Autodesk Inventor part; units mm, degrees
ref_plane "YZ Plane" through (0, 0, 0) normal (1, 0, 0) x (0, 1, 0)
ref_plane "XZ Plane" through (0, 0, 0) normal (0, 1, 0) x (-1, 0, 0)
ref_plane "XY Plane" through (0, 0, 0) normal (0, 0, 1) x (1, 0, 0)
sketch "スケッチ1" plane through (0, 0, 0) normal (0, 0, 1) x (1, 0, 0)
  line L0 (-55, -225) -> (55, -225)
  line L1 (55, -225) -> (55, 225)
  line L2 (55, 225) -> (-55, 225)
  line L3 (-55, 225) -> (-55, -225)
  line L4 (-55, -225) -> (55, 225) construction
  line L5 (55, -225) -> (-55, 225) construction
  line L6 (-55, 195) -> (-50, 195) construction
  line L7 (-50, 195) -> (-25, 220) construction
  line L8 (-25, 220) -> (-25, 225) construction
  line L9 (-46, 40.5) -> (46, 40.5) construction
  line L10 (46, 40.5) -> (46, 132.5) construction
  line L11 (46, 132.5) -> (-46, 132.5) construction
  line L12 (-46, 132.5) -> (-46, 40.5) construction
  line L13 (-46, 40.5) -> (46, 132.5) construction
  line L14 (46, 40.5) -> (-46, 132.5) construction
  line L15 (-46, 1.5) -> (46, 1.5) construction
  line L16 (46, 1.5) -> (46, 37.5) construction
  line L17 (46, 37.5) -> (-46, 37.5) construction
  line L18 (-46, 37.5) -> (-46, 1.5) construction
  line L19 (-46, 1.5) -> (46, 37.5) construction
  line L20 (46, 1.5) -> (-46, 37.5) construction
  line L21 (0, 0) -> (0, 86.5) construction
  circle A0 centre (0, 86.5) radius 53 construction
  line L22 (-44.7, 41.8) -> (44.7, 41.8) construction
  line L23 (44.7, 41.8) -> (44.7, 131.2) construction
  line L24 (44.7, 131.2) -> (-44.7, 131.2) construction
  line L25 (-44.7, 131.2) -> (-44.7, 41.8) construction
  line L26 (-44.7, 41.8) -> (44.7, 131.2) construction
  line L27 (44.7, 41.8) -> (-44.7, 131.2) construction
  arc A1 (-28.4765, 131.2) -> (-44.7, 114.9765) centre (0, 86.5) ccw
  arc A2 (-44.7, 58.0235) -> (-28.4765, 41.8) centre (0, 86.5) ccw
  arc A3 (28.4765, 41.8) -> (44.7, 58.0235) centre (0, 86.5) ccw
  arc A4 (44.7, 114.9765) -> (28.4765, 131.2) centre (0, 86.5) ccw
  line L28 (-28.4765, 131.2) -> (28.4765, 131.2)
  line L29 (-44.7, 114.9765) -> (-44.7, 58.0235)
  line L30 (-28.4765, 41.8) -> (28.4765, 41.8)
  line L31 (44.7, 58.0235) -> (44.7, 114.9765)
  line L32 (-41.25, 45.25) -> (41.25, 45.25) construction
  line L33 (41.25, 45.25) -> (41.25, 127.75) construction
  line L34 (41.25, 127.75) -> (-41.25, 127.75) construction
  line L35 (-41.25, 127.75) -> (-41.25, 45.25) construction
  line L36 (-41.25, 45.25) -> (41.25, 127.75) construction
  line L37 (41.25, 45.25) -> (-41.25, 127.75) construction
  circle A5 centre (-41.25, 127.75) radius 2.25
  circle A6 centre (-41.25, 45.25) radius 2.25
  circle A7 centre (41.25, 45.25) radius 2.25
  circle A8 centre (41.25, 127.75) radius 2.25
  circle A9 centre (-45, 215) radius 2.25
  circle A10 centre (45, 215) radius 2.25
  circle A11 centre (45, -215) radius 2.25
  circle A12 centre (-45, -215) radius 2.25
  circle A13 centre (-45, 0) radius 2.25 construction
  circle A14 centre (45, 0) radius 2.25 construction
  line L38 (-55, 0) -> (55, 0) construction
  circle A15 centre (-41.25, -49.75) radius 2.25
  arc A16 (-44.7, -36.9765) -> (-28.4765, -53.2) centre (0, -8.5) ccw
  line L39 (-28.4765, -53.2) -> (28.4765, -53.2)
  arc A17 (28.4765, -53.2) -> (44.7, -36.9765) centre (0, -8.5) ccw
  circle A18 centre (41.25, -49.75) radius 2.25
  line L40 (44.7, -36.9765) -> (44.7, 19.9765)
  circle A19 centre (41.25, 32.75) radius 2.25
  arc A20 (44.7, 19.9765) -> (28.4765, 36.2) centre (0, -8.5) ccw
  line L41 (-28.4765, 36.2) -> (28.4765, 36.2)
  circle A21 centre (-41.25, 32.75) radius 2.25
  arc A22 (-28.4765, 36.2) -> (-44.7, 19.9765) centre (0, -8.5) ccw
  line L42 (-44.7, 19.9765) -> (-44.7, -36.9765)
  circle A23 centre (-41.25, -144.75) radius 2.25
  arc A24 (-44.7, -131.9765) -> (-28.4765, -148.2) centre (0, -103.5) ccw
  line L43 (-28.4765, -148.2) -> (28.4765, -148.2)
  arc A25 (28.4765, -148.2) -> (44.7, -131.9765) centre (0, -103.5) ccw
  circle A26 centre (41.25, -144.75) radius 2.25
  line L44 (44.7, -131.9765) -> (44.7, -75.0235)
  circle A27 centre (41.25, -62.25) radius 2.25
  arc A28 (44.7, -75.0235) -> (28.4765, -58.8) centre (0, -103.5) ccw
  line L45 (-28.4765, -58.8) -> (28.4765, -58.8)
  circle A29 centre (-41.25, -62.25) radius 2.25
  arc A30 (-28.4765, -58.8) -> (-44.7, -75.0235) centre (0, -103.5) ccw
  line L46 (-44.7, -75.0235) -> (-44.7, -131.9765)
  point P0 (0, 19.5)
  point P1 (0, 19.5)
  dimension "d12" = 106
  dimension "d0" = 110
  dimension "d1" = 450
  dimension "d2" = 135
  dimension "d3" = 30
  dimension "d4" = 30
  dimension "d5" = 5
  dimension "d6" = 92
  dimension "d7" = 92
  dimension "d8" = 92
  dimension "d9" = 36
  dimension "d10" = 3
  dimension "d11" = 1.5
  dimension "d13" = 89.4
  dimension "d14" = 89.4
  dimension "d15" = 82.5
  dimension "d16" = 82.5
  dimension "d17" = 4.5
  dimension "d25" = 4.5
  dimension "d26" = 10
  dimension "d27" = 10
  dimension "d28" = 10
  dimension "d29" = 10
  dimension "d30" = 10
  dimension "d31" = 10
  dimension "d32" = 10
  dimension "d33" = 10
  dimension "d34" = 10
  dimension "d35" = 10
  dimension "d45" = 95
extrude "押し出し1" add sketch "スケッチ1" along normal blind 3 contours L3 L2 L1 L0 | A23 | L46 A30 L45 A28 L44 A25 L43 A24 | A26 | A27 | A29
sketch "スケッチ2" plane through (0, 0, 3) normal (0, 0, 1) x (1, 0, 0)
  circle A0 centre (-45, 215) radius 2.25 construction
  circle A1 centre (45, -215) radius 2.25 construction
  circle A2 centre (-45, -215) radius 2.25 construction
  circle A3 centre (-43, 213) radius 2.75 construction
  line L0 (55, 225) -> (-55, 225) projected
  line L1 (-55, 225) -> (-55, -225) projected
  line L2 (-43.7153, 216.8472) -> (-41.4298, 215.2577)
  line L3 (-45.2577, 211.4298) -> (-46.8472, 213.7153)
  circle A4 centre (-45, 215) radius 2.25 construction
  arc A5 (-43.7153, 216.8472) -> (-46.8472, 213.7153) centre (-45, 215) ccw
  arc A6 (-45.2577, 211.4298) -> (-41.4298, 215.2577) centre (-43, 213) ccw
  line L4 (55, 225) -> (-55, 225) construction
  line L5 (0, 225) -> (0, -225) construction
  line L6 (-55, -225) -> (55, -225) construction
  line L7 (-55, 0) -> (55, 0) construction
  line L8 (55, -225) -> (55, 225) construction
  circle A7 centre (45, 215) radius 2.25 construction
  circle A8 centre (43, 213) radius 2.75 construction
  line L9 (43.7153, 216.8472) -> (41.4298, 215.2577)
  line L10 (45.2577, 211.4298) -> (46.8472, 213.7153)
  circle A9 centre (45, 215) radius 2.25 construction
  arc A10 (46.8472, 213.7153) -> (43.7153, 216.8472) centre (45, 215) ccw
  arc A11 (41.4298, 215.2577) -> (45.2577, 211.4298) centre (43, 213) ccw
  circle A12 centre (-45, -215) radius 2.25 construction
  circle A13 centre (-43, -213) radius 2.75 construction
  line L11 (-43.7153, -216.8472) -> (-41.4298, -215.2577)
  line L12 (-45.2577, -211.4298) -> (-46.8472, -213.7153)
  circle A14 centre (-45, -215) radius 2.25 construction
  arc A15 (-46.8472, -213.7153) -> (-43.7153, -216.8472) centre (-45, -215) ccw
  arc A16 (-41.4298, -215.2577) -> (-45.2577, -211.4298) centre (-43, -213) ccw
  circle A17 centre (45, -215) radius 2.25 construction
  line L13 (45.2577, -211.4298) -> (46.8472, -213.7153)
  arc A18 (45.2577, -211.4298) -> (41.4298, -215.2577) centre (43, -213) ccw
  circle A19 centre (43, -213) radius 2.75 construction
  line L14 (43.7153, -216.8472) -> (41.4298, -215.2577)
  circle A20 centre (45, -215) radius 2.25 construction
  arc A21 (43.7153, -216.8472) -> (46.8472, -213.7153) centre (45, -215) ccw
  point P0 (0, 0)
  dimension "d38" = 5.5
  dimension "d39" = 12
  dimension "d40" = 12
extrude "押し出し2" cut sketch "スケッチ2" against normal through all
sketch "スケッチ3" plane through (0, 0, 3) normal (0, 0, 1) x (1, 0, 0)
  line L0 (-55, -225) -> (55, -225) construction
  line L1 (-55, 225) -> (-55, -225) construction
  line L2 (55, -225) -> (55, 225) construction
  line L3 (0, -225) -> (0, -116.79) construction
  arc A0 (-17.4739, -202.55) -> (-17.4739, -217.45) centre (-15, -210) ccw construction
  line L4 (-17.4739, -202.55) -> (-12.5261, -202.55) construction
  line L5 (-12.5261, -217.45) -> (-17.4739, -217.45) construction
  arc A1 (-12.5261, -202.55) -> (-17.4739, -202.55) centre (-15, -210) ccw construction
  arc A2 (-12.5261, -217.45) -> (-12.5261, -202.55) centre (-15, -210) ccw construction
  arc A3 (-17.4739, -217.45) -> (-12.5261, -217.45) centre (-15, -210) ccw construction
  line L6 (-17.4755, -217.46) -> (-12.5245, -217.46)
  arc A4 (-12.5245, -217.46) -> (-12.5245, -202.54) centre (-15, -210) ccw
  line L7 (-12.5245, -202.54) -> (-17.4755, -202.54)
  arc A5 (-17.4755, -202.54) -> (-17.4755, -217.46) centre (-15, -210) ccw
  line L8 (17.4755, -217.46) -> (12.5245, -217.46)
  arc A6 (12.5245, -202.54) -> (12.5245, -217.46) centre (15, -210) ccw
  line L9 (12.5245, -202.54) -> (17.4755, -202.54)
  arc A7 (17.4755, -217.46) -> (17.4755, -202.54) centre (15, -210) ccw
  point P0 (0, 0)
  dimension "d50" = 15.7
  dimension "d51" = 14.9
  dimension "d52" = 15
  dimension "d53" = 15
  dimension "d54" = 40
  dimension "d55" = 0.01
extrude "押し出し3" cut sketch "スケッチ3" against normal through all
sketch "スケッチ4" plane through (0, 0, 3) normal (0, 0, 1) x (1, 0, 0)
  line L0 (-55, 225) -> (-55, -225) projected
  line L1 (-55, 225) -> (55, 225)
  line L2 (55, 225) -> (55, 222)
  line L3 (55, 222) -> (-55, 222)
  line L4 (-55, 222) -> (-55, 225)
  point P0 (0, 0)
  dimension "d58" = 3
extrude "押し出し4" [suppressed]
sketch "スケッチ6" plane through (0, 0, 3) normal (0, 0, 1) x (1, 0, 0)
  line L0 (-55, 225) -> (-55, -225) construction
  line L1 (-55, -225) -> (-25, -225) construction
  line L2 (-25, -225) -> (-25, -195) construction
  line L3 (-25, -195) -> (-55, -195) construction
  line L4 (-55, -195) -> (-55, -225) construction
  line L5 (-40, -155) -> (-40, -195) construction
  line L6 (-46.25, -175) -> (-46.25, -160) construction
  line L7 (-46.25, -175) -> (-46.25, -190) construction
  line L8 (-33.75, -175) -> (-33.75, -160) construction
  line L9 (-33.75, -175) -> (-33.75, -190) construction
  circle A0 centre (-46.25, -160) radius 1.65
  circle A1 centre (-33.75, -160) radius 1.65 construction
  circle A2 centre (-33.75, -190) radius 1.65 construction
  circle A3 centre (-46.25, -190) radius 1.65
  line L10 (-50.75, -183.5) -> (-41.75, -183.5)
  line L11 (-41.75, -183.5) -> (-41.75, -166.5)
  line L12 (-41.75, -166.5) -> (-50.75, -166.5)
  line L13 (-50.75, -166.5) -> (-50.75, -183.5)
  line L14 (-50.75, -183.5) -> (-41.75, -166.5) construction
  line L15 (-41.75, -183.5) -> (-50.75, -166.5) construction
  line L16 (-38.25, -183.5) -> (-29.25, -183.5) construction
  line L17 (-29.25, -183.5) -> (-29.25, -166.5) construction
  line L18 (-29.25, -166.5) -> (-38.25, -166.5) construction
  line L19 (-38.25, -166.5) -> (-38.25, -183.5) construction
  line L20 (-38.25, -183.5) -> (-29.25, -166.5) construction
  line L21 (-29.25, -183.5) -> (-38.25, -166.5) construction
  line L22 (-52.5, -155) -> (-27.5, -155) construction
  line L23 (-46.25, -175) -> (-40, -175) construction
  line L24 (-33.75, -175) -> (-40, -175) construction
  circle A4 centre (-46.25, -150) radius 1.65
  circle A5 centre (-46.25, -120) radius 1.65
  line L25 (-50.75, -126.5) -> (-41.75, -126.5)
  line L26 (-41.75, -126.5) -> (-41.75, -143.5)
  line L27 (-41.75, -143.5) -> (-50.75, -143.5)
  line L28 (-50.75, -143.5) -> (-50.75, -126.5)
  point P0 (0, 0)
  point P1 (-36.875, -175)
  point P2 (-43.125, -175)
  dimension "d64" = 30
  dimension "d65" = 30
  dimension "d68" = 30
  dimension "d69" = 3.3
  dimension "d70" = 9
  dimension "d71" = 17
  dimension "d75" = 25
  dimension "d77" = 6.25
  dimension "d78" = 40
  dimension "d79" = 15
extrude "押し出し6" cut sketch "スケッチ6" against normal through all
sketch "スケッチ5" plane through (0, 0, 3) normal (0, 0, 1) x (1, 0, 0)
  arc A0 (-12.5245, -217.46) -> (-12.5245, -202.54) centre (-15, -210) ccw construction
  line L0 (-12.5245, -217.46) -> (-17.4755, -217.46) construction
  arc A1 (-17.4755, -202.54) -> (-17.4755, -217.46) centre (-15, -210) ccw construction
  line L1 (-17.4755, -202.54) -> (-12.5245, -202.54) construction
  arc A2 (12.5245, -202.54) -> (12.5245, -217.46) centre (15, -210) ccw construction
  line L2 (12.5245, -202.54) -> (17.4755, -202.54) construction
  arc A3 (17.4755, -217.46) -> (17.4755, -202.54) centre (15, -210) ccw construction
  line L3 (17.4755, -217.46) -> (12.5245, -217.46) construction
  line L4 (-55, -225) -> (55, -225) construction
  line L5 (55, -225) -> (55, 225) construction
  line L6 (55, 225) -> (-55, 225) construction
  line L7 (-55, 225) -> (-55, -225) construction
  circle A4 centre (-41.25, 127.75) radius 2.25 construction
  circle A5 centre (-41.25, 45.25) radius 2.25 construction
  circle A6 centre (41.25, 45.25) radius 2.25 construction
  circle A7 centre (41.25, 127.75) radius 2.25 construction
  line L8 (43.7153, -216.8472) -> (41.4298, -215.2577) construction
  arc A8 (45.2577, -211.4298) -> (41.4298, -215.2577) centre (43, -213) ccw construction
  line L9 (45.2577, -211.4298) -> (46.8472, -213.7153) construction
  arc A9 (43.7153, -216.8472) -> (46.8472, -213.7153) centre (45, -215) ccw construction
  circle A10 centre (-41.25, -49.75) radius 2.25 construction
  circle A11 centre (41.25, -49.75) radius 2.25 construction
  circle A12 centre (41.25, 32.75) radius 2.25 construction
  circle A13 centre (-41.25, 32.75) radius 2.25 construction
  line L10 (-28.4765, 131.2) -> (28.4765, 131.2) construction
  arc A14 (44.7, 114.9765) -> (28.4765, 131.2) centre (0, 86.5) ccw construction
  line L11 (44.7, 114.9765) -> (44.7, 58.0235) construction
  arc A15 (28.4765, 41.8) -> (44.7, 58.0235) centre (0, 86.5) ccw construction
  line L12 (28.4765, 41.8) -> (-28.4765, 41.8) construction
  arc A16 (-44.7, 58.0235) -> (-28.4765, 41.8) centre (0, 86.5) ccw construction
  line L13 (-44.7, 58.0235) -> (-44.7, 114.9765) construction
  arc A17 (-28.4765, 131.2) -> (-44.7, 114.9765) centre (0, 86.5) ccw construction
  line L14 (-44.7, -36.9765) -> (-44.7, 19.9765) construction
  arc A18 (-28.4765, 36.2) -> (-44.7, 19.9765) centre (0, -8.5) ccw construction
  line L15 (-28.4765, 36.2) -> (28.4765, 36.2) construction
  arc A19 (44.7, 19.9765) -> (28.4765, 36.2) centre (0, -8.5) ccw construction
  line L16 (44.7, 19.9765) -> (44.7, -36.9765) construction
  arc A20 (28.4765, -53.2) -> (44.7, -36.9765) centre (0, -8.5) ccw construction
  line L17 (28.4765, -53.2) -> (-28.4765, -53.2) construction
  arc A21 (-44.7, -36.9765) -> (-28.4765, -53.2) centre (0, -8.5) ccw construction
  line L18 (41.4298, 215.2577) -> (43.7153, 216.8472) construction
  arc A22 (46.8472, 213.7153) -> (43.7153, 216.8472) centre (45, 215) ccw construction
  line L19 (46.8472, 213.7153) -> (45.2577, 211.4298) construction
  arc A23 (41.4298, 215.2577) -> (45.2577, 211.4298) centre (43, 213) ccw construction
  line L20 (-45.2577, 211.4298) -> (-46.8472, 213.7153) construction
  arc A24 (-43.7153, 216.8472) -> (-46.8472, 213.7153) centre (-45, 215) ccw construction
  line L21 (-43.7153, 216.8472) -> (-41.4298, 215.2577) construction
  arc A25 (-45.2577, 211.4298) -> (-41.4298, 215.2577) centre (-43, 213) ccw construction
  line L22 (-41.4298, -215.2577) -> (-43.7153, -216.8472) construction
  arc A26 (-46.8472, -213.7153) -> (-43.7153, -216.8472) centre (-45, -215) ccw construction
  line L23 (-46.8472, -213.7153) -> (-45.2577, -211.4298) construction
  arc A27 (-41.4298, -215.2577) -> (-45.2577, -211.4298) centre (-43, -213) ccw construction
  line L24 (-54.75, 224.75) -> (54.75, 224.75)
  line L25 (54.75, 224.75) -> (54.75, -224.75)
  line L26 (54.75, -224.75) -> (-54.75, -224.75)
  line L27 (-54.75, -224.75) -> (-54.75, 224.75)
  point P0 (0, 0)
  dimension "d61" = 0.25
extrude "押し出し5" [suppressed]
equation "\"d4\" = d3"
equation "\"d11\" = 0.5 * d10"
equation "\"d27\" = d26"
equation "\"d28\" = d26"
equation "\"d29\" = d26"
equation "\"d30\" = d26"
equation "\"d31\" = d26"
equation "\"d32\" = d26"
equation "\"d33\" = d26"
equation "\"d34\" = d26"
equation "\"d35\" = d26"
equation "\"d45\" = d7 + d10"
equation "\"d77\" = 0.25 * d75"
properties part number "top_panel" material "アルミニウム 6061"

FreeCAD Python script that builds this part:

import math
import FreeCAD as App
import Part
import Sketcher

doc = App.newDocument("Part")
body = doc.addObject("PartDesign::Body", "Body")

sketch1 = doc.addObject("Sketcher::SketchObject", "Sketch")
body.addObject(sketch1)
sketch1.AttachmentSupport = (doc.XY_Plane, [""])
sketch1.MapMode = "FlatFace"
sketch1.addGeometry([
    Part.LineSegment(App.Vector(-55, 225, 0), App.Vector(-55, -225, 0)),
    Part.LineSegment(App.Vector(-55, -225, 0), App.Vector(55, -225, 0)),
    Part.LineSegment(App.Vector(55, -225, 0), App.Vector(55, 225, 0)),
    Part.LineSegment(App.Vector(55, 225, 0), App.Vector(-55, 225, 0)),
    Part.Circle(App.Vector(-45, -215, 0), App.Vector(0, 0, 1), 2.2),
    Part.Circle(App.Vector(-41.2, -49.8, 0), App.Vector(0, 0, 1), 2.2),
    Part.Circle(App.Vector(45, -215, 0), App.Vector(0, 0, 1), 2.2),
    Part.ArcOfCircle(Part.Circle(App.Vector(0, -8.5, 0), App.Vector(0, 0, 1), 53), math.radians(-148), math.radians(-122)),
    Part.LineSegment(App.Vector(-44.7, -37, 0), App.Vector(-44.7, 20, 0)),
    Part.ArcOfCircle(Part.Circle(App.Vector(0, -8.5, 0), App.Vector(0, 0, 1), 53), math.radians(122), math.radians(148)),
    Part.LineSegment(App.Vector(-28.5, 36.2, 0), App.Vector(28.5, 36.2, 0)),
    Part.ArcOfCircle(Part.Circle(App.Vector(0, -8.5, 0), App.Vector(0, 0, 1), 53), math.radians(32), math.radians(58)),
    Part.LineSegment(App.Vector(44.7, 20, 0), App.Vector(44.7, -37, 0)),
    Part.ArcOfCircle(Part.Circle(App.Vector(0, -8.5, 0), App.Vector(0, 0, 1), 53), math.radians(-58), math.radians(-32)),
    Part.LineSegment(App.Vector(28.5, -53.2, 0), App.Vector(-28.5, -53.2, 0)),
    Part.Circle(App.Vector(41.2, -49.8, 0), App.Vector(0, 0, 1), 2.2),
    Part.Circle(App.Vector(-41.2, 32.8, 0), App.Vector(0, 0, 1), 2.2),
    Part.Circle(App.Vector(-41.2, 45.2, 0), App.Vector(0, 0, 1), 2.2),
    Part.Circle(App.Vector(-41.2, 127.8, 0), App.Vector(0, 0, 1), 2.2),
    Part.Circle(App.Vector(-45, 215, 0), App.Vector(0, 0, 1), 2.2),
    Part.ArcOfCircle(Part.Circle(App.Vector(0, 86.5, 0), App.Vector(0, 0, 1), 53), math.radians(122), math.radians(148)),
    Part.LineSegment(App.Vector(-28.5, 131.2, 0), App.Vector(28.5, 131.2, 0)),
    Part.ArcOfCircle(Part.Circle(App.Vector(0, 86.5, 0), App.Vector(0, 0, 1), 53), math.radians(32), math.radians(58)),
    Part.LineSegment(App.Vector(44.7, 115, 0), App.Vector(44.7, 58, 0)),
    Part.ArcOfCircle(Part.Circle(App.Vector(0, 86.5, 0), App.Vector(0, 0, 1), 53), math.radians(-58), math.radians(-32)),
    Part.LineSegment(App.Vector(28.5, 41.8, 0), App.Vector(-28.5, 41.8, 0)),
    Part.ArcOfCircle(Part.Circle(App.Vector(0, 86.5, 0), App.Vector(0, 0, 1), 53), math.radians(-148), math.radians(-122)),
    Part.LineSegment(App.Vector(-44.7, 58, 0), App.Vector(-44.7, 115, 0)),
    Part.Circle(App.Vector(41.2, 32.8, 0), App.Vector(0, 0, 1), 2.2),
    Part.Circle(App.Vector(41.2, 45.2, 0), App.Vector(0, 0, 1), 2.2),
    Part.Circle(App.Vector(41.2, 127.8, 0), App.Vector(0, 0, 1), 2.2),
    Part.Circle(App.Vector(45, 215, 0), App.Vector(0, 0, 1), 2.2),
], False)
sketch1.addConstraint([
    Sketcher.Constraint("Coincident", 0, 2, 1, 1),
    Sketcher.Constraint("Coincident", 1, 2, 2, 1),
    Sketcher.Constraint("Coincident", 2, 2, 3, 1),
    Sketcher.Constraint("Coincident", 3, 2, 0, 1),
    Sketcher.Constraint("Coincident", 7, 1, 8, 1),
    Sketcher.Constraint("Coincident", 8, 2, 9, 2),
    Sketcher.Constraint("Coincident", 9, 1, 10, 1),
    Sketcher.Constraint("Coincident", 10, 2, 11, 2),
    Sketcher.Constraint("Coincident", 11, 1, 12, 1),
    Sketcher.Constraint("Coincident", 12, 2, 13, 2),
    Sketcher.Constraint("Coincident", 13, 1, 14, 1),
    Sketcher.Constraint("Coincident", 14, 2, 7, 2),
    Sketcher.Constraint("Coincident", 20, 1, 21, 1),
    Sketcher.Constraint("Coincident", 21, 2, 22, 2),
    Sketcher.Constraint("Coincident", 22, 1, 23, 1),
    Sketcher.Constraint("Coincident", 23, 2, 24, 2),
    Sketcher.Constraint("Coincident", 24, 1, 25, 1),
    Sketcher.Constraint("Coincident", 25, 2, 26, 2),
    Sketcher.Constraint("Coincident", 26, 1, 27, 1),
    Sketcher.Constraint("Coincident", 27, 2, 20, 2),
    Sketcher.Constraint("Vertical", 0),
    Sketcher.Constraint("Horizontal", 1),
    Sketcher.Constraint("Vertical", 2),
    Sketcher.Constraint("Horizontal", 3),
    Sketcher.Constraint("Vertical", 8),
    Sketcher.Constraint("Horizontal", 10),
    Sketcher.Constraint("Vertical", 12),
    Sketcher.Constraint("Horizontal", 14),
    Sketcher.Constraint("Horizontal", 21),
    Sketcher.Constraint("Vertical", 23),
    Sketcher.Constraint("Horizontal", 25),
    Sketcher.Constraint("Vertical", 27),
    Sketcher.Constraint("Coincident", 9, 3, 7, 3),
    Sketcher.Constraint("Coincident", 11, 3, 7, 3),
    Sketcher.Constraint("Coincident", 13, 3, 7, 3),
    Sketcher.Constraint("Coincident", 22, 3, 20, 3),
    Sketcher.Constraint("Coincident", 24, 3, 20, 3),
    Sketcher.Constraint("Coincident", 26, 3, 20, 3),
    Sketcher.Constraint("Equal", 4, 5),
    Sketcher.Constraint("Equal", 5, 6),
    Sketcher.Constraint("Equal", 7, 9),
    Sketcher.Constraint("Equal", 9, 11),
    Sketcher.Constraint("Equal", 11, 13),
    Sketcher.Constraint("Equal", 6, 15),
    Sketcher.Constraint("Equal", 15, 16),
    Sketcher.Constraint("Equal", 16, 17),
    Sketcher.Constraint("Equal", 17, 18),
    Sketcher.Constraint("Equal", 18, 19),
    Sketcher.Constraint("Equal", 13, 20),
    Sketcher.Constraint("Equal", 20, 22),
    Sketcher.Constraint("Equal", 22, 24),
    Sketcher.Constraint("Equal", 24, 26),
    Sketcher.Constraint("Equal", 19, 28),
    Sketcher.Constraint("Equal", 28, 29),
    Sketcher.Constraint("Equal", 29, 30),
    Sketcher.Constraint("Equal", 30, 31),
    Sketcher.Constraint("Symmetric", 6, 3, 19, 3, -1, 1),
    Sketcher.Constraint("Symmetric", 4, 3, 31, 3, -1, 1),
    Sketcher.Constraint("Symmetric", 0, 2, 2, 2, -1, 1),
    Sketcher.Constraint("Symmetric", 4, 3, 6, 3, -2),
    Sketcher.Constraint("Symmetric", 5, 3, 15, 3, -2),
    Sketcher.Constraint("Symmetric", 16, 3, 28, 3, -2),
    Sketcher.Constraint("Symmetric", 17, 3, 29, 3, -2),
    Sketcher.Constraint("Symmetric", 18, 3, 30, 3, -2),
    Sketcher.Constraint("Symmetric", 8, 2, 11, 1, -2),
    Sketcher.Constraint("Symmetric", 23, 2, 26, 1, -2),
    Sketcher.Constraint("Vertical", 5, 3, 16, 3),
    Sketcher.Constraint("Vertical", 16, 3, 17, 3),
    Sketcher.Constraint("Vertical", 17, 3, 18, 3),
    Sketcher.Constraint("Vertical", 10, 2, 13, 1),
    Sketcher.Constraint("Vertical", 14, 2, 20, 1),
    Sketcher.Constraint("Vertical", 12, 2, 22, 1),
    Sketcher.Constraint("Vertical", 21, 2, 24, 1),
    Sketcher.Constraint("Equal", 25, 8),
    Sketcher.Constraint("Radius", 7, 53.0),
    Sketcher.Constraint("Diameter", 4, 4.5),
    Sketcher.Constraint("DistanceX", 1, 1, 1, 2, 110.0),
    Sketcher.Constraint("DistanceY", 0, 2, 0, 1, 450.0),
    Sketcher.Constraint("DistanceY", 16, 3, 18, 3, 95.0),
    Sketcher.Constraint("DistanceY", 7, 3, 20, 3, 95.0),
    Sketcher.Constraint("DistanceX", 0, 2, 4, 3, 10.0),
    Sketcher.Constraint("DistanceY", 0, 2, 4, 3, 10.0),
    Sketcher.Constraint("DistanceX", 5, 3, 15, 3, 82.5),
    Sketcher.Constraint("DistanceY", 5, 3, 16, 3, 82.5),
    Sketcher.Constraint("DistanceY", 17, 3, 18, 3, 82.5),
    Sketcher.Constraint("DistanceY", 7, 3, -1, 1, 8.5),
    Sketcher.Constraint("DistanceX", 7, 1, -1, 1, 44.7),
    Sketcher.Constraint("DistanceY", 5, 3, -1, 1, 49.75),
])
pad1 = doc.addObject("PartDesign::Pad", "Pad")
body.addObject(pad1)
pad1.Profile = sketch1
pad1.Length = 3

sketch2 = doc.addObject("Sketcher::SketchObject", "Sketch001")
body.addObject(sketch2)
sketch2.AttachmentSupport = (doc.XY_Plane, [""])
sketch2.MapMode = "FlatFace"
sketch2.AttachmentOffset = App.Placement(App.Vector(0, 0, 3), App.Rotation())
sketch2.addGeometry([
    Part.LineSegment(App.Vector(-41.4, 215.3, 0), App.Vector(-43.7, 216.8, 0)),
    Part.ArcOfCircle(Part.Circle(App.Vector(-45, 215, 0), App.Vector(0, 0, 1), 2.3), math.radians(55), math.radians(215)),
    Part.LineSegment(App.Vector(-46.8, 213.7, 0), App.Vector(-45.3, 211.4, 0)),
    Part.ArcOfCircle(Part.Circle(App.Vector(-43, 213, 0), App.Vector(0, 0, 1), 2.8), math.radians(-145), math.radians(55)),
    Part.ArcOfCircle(Part.Circle(App.Vector(45, 215, 0), App.Vector(0, 0, 1), 2.3), math.radians(-35), math.radians(125)),
    Part.LineSegment(App.Vector(43.7, 216.8, 0), App.Vector(41.4, 215.3, 0)),
    Part.ArcOfCircle(Part.Circle(App.Vector(43, 213, 0), App.Vector(0, 0, 1), 2.8), math.radians(125), math.radians(325)),
    Part.LineSegment(App.Vector(45.3, 211.4, 0), App.Vector(46.8, 213.7, 0)),
    Part.ArcOfCircle(Part.Circle(App.Vector(-45, -215, 0), App.Vector(0, 0, 1), 2.3), math.radians(145), math.radians(305)),
    Part.LineSegment(App.Vector(-43.7, -216.8, 0), App.Vector(-41.4, -215.3, 0)),
    Part.ArcOfCircle(Part.Circle(App.Vector(-43, -213, 0), App.Vector(0, 0, 1), 2.8), math.radians(-55), math.radians(145)),
    Part.LineSegment(App.Vector(-45.3, -211.4, 0), App.Vector(-46.8, -213.7, 0)),
    Part.LineSegment(App.Vector(46.8, -213.7, 0), App.Vector(45.3, -211.4, 0)),
    Part.ArcOfCircle(Part.Circle(App.Vector(43, -213, 0), App.Vector(0, 0, 1), 2.8), math.radians(35), math.radians(235)),
    Part.LineSegment(App.Vector(41.4, -215.3, 0), App.Vector(43.7, -216.8, 0)),
    Part.ArcOfCircle(Part.Circle(App.Vector(45, -215, 0), App.Vector(0, 0, 1), 2.3), math.radians(-125), math.radians(35)),
], False)
sketch2.addConstraint([
    Sketcher.Constraint("Tangent", 0, 2, 1, 1),
    Sketcher.Constraint("Tangent", 1, 2, 2, 1),
    Sketcher.Constraint("Tangent", 2, 2, 3, 1),
    Sketcher.Constraint("Tangent", 3, 2, 0, 1),
    Sketcher.Constraint("Tangent", 4, 2, 5, 1),
    Sketcher.Constraint("Tangent", 5, 2, 6, 1),
    Sketcher.Constraint("Tangent", 6, 2, 7, 1),
    Sketcher.Constraint("Tangent", 7, 2, 4, 1),
    Sketcher.Constraint("Tangent", 8, 2, 9, 1),
    Sketcher.Constraint("Tangent", 9, 2, 10, 1),
    Sketcher.Constraint("Tangent", 10, 2, 11, 1),
    Sketcher.Constraint("Tangent", 11, 2, 8, 1),
    Sketcher.Constraint("Tangent", 12, 2, 13, 1),
    Sketcher.Constraint("Tangent", 13, 2, 14, 1),
    Sketcher.Constraint("Tangent", 14, 2, 15, 1),
    Sketcher.Constraint("Tangent", 15, 2, 12, 1),
    Sketcher.Constraint("Equal", 1, 4),
    Sketcher.Constraint("Equal", 3, 6),
    Sketcher.Constraint("Equal", 4, 8),
    Sketcher.Constraint("Equal", 6, 10),
    Sketcher.Constraint("Equal", 10, 13),
    Sketcher.Constraint("Equal", 8, 15),
    Sketcher.Constraint("Symmetric", 4, 3, 8, 3, -1, 1),
    Sketcher.Constraint("Symmetric", 6, 3, 10, 3, -1, 1),
    Sketcher.Constraint("Symmetric", 3, 3, 13, 3, -1, 1),
    Sketcher.Constraint("Symmetric", 1, 3, 15, 3, -1, 1),
    Sketcher.Constraint("Symmetric", 1, 3, 4, 3, -2),
    Sketcher.Constraint("Symmetric", 3, 3, 6, 3, -2),
    Sketcher.Constraint("Perpendicular", 2, 5),
    Sketcher.Constraint("Radius", 3, 2.75),
    Sketcher.Constraint("Radius", 1, 2.25),
    Sketcher.Constraint("DistanceX", 1, 3, -1, 1, 45.0),
    Sketcher.Constraint("DistanceY", -1, 1, 1, 3, 215.0),
    Sketcher.Constraint("DistanceX", 3, 3, -1, 1, 43.0),
])
pocket1 = doc.addObject("PartDesign::Pocket", "Pocket")
body.addObject(pocket1)
pocket1.Profile = sketch2
pocket1.Type = "ThroughAll"

sketch3 = doc.addObject("Sketcher::SketchObject", "Sketch002")
body.addObject(sketch3)
sketch3.AttachmentSupport = (doc.XY_Plane, [""])
sketch3.MapMode = "FlatFace"
sketch3.AttachmentOffset = App.Placement(App.Vector(0, 0, 3), App.Rotation())
sketch3.addGeometry([
    Part.ArcOfCircle(Part.Circle(App.Vector(-15, -210, 0), App.Vector(0, 0, 1), 7.9), math.radians(108), math.radians(252)),
    Part.LineSegment(App.Vector(-17.5, -217.5, 0), App.Vector(-12.5, -217.5, 0)),
    Part.ArcOfCircle(Part.Circle(App.Vector(-15, -210, 0), App.Vector(0, 0, 1), 7.9), math.radians(-72), math.radians(72)),
    Part.LineSegment(App.Vector(-12.5, -202.5, 0), App.Vector(-17.5, -202.5, 0)),
    Part.LineSegment(App.Vector(12.5, -217.5, 0), App.Vector(17.5, -217.5, 0)),
    Part.ArcOfCircle(Part.Circle(App.Vector(15, -210, 0), App.Vector(0, 0, 1), 7.9), math.radians(-72), math.radians(72)),
    Part.LineSegment(App.Vector(17.5, -202.5, 0), App.Vector(12.5, -202.5, 0)),
    Part.ArcOfCircle(Part.Circle(App.Vector(15, -210, 0), App.Vector(0, 0, 1), 7.9), math.radians(108), math.radians(252)),
], False)
sketch3.addConstraint([
    Sketcher.Constraint("Coincident", 0, 2, 1, 1),
    Sketcher.Constraint("Coincident", 1, 2, 2, 1),
    Sketcher.Constraint("Coincident", 2, 2, 3, 1),
    Sketcher.Constraint("Coincident", 3, 2, 0, 1),
    Sketcher.Constraint("Coincident", 4, 2, 5, 1),
    Sketcher.Constraint("Coincident", 5, 2, 6, 1),
    Sketcher.Constraint("Coincident", 6, 2, 7, 1),
    Sketcher.Constraint("Coincident", 7, 2, 4, 1),
    Sketcher.Constraint("Horizontal", 1),
    Sketcher.Constraint("Horizontal", 3),
    Sketcher.Constraint("Horizontal", 4),
    Sketcher.Constraint("Horizontal", 6),
    Sketcher.Constraint("Coincident", 2, 3, 0, 3),
    Sketcher.Constraint("Coincident", 7, 3, 5, 3),
    Sketcher.Constraint("Equal", 0, 2),
    Sketcher.Constraint("Equal", 2, 5),
    Sketcher.Constraint("Equal", 5, 7),
    Sketcher.Constraint("Symmetric", 0, 3, 5, 3, -2),
    Sketcher.Constraint("Horizontal", 1, 2, 4, 2),
    Sketcher.Constraint("Horizontal", 3, 2, 5, 2),
    Sketcher.Constraint("Vertical", 1, 2, 2, 2),
    Sketcher.Constraint("DistanceX", 0, 3, -1, 1, 15.0),
    Sketcher.Constraint("Radius", 0, 7.86),
    Sketcher.Constraint("DistanceY", 0, 3, -1, 1, 210.0),
    Sketcher.Constraint("DistanceX", 1, 1, 1, 2, 4.951),
])
pocket2 = doc.addObject("PartDesign::Pocket", "Pocket001")
body.addObject(pocket2)
pocket2.Profile = sketch3
pocket2.Type = "ThroughAll"

sketch4 = doc.addObject("Sketcher::SketchObject", "Sketch003")
body.addObject(sketch4)
sketch4.AttachmentSupport = (doc.XY_Plane, [""])
sketch4.MapMode = "FlatFace"
sketch4.AttachmentOffset = App.Placement(App.Vector(0, 0, 3), App.Rotation())
sketch4.addGeometry([
    Part.Circle(App.Vector(-46.2, -160, 0), App.Vector(0, 0, 1), 1.6),
    Part.Circle(App.Vector(-46.2, -190, 0), App.Vector(0, 0, 1), 1.6),
    Part.LineSegment(App.Vector(-50.8, -166.5, 0), App.Vector(-50.8, -183.5, 0)),
    Part.LineSegment(App.Vector(-50.8, -183.5, 0), App.Vector(-41.8, -183.5, 0)),
    Part.LineSegment(App.Vector(-41.8, -183.5, 0), App.Vector(-41.8, -166.5, 0)),
    Part.LineSegment(App.Vector(-41.8, -166.5, 0), App.Vector(-50.8, -166.5, 0)),
    Part.Circle(App.Vector(-46.2, -150, 0), App.Vector(0, 0, 1), 1.6),
    Part.Circle(App.Vector(-46.2, -120, 0), App.Vector(0, 0, 1), 1.6),
    Part.LineSegment(App.Vector(-41.8, -126.5, 0), App.Vector(-50.8, -126.5, 0)),
    Part.LineSegment(App.Vector(-50.8, -126.5, 0), App.Vector(-50.8, -143.5, 0)),
    Part.LineSegment(App.Vector(-50.8, -143.5, 0), App.Vector(-41.8, -143.5, 0)),
    Part.LineSegment(App.Vector(-41.8, -143.5, 0), App.Vector(-41.8, -126.5, 0)),
], False)
sketch4.addConstraint([
    Sketcher.Constraint("Coincident", 2, 2, 3, 1),
    Sketcher.Constraint("Coincident", 3, 2, 4, 1),
    Sketcher.Constraint("Coincident", 4, 2, 5, 1),
    Sketcher.Constraint("Coincident", 5, 2, 2, 1),
    Sketcher.Constraint("Coincident", 8, 2, 9, 1),
    Sketcher.Constraint("Coincident", 9, 2, 10, 1),
    Sketcher.Constraint("Coincident", 10, 2, 11, 1),
    Sketcher.Constraint("Coincident", 11, 2, 8, 1),
    Sketcher.Constraint("Vertical", 2),
    Sketcher.Constraint("Horizontal", 3),
    Sketcher.Constraint("Vertical", 4),
    Sketcher.Constraint("Horizontal", 5),
    Sketcher.Constraint("Horizontal", 8),
    Sketcher.Constraint("Vertical", 9),
    Sketcher.Constraint("Horizontal", 10),
    Sketcher.Constraint("Vertical", 11),
    Sketcher.Constraint("Equal", 0, 1),
    Sketcher.Constraint("Equal", 1, 6),
    Sketcher.Constraint("Equal", 6, 7),
    Sketcher.Constraint("Vertical", 0, 3, 1, 3),
    Sketcher.Constraint("Vertical", 1, 3, 6, 3),
    Sketcher.Constraint("Vertical", 6, 3, 7, 3),
    Sketcher.Constraint("Vertical", 5, 2, 8, 2),
    Sketcher.Constraint("Vertical", 4, 2, 10, 2),
    Sketcher.Constraint("Equal", 4, 9),
    Sketcher.Constraint("Diameter", 0, 3.3),
    Sketcher.Constraint("DistanceX", 3, 1, 3, 2, 9.0),
    Sketcher.Constraint("DistanceY", 2, 2, 2, 1, 17.0),
    Sketcher.Constraint("DistanceY", 1, 3, 0, 3, 30.0),
    Sketcher.Constraint("DistanceY", 1, 3, 6, 3, 40.0),
    Sketcher.Constraint("DistanceY", 6, 3, 7, 3, 30.0),
    Sketcher.Constraint("DistanceY", 5, 2, 8, 2, 40.0),
    Sketcher.Constraint("DistanceY", 0, 3, -1, 1, 160.0),
    Sketcher.Constraint("DistanceY", 2, 2, -1, 1, 183.5),
    Sketcher.Constraint("DistanceX", 2, 2, 1, 3, 4.5),
    Sketcher.Constraint("DistanceX", 0, 3, -1, 1, 46.25),
])
pocket3 = doc.addObject("PartDesign::Pocket", "Pocket002")
body.addObject(pocket3)
pocket3.Profile = sketch4
pocket3.Type = "ThroughAll"

doc.recompute()
